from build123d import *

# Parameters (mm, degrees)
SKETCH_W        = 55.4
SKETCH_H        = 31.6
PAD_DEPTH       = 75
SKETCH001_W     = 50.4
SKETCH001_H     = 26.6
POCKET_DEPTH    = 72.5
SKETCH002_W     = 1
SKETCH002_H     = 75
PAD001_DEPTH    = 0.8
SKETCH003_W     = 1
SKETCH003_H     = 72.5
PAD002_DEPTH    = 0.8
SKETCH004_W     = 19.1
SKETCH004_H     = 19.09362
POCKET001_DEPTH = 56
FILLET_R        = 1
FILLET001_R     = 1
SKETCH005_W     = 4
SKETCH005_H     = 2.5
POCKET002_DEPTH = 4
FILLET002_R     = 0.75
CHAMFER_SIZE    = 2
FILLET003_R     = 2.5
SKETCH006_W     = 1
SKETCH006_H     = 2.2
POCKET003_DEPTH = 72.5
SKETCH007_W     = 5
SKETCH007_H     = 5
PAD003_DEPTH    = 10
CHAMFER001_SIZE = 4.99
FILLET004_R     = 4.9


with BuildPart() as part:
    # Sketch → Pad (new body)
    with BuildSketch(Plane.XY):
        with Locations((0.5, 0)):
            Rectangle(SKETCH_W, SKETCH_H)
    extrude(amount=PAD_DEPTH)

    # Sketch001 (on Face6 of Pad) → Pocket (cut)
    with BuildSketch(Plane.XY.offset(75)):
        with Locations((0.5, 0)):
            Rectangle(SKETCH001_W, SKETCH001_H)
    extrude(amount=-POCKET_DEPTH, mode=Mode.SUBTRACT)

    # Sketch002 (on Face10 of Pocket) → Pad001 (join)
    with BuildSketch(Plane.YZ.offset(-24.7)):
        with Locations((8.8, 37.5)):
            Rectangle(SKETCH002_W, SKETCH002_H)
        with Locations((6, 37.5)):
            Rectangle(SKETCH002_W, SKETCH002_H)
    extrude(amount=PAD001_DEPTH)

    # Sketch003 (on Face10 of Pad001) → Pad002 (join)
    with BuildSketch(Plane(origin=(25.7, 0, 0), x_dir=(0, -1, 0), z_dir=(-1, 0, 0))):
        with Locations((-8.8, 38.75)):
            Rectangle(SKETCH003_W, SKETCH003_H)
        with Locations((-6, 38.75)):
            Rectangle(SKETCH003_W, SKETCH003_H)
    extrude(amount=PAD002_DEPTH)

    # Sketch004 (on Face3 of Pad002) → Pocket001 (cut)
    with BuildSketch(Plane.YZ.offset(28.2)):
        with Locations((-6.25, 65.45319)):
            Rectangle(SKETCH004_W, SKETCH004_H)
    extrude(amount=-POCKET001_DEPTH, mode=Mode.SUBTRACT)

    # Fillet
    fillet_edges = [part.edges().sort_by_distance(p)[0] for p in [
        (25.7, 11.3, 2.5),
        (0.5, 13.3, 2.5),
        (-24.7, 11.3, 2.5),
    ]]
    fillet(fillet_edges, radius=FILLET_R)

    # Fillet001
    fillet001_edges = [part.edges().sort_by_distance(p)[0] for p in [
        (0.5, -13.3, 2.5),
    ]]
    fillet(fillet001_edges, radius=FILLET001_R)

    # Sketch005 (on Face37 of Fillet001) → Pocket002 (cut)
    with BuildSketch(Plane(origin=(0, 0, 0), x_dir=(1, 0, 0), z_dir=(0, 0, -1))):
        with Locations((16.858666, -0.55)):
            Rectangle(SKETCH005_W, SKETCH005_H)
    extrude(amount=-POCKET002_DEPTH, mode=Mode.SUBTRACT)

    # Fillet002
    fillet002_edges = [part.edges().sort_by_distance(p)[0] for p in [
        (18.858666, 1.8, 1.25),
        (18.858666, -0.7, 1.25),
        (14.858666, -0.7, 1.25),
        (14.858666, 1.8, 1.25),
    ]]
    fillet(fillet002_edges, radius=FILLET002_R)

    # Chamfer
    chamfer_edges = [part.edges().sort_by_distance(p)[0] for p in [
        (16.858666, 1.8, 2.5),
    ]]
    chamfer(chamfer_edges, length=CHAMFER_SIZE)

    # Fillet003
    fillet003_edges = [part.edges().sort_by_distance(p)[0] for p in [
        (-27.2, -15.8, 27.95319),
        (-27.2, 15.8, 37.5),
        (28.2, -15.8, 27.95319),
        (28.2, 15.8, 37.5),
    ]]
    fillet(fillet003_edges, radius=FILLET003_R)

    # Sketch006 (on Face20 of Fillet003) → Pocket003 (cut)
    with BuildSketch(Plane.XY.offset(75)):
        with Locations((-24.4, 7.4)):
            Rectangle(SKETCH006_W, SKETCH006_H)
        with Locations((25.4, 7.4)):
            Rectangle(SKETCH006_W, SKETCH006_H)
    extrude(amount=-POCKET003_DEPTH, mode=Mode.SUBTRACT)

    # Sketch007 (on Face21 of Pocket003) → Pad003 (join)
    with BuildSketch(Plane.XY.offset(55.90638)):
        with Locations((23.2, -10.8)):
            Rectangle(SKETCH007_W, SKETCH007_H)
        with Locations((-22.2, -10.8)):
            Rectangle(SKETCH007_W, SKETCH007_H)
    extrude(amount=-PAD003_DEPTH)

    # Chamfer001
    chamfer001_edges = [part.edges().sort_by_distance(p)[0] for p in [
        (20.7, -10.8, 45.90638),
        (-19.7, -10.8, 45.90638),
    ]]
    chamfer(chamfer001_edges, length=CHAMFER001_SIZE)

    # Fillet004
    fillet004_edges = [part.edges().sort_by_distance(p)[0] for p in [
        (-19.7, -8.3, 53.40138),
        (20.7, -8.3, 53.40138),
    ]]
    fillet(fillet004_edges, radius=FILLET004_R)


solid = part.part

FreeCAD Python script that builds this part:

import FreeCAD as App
import Part
import Sketcher
Q = App.Units.Quantity


def edges_at(feature, points):
    """Names of the edges that pass closest to the given points."""
    edges = feature.Shape.Edges
    near = lambda p: min(range(len(edges)), key=lambda i: edges[i].distToShape(Part.Vertex(*p))[0])
    return sorted({f"Edge{near(p) + 1}" for p in points})

doc = App.newDocument("Part")
body = doc.addObject("PartDesign::Body", "Body")

# Sketch on XY plane
sketch1 = doc.addObject("Sketcher::SketchObject", "Sketch")
body.addObject(sketch1)
sketch1.AttachmentSupport = (doc.XY_Plane, [""])
sketch1.MapMode = "FlatFace"
sketch1.addGeometry([
    Part.LineSegment(App.Vector(-27, 16, 0), App.Vector(-27, -16, 0)),
    Part.LineSegment(App.Vector(-27, -16, 0), App.Vector(28, -16, 0)),
    Part.LineSegment(App.Vector(28, -16, 0), App.Vector(28, 16, 0)),
    Part.LineSegment(App.Vector(28, 16, 0), App.Vector(-27, 16, 0)),
], False)
sketch1.addConstraint([
    Sketcher.Constraint("Coincident", 0, 2, 1, 1),
    Sketcher.Constraint("Coincident", 1, 2, 2, 1),
    Sketcher.Constraint("Coincident", 2, 2, 3, 1),
    Sketcher.Constraint("Coincident", 3, 2, 0, 1),
    Sketcher.Constraint("Vertical", 0),
    Sketcher.Constraint("Horizontal", 1),
    Sketcher.Constraint("Vertical", 2),
    Sketcher.Constraint("Horizontal", 3),
    Sketcher.Constraint("DistanceX", 1, 1, 1, 2, Q("55.4 mm")),
    Sketcher.Constraint("DistanceY", 0, 2, 0, 1, Q("31.6 mm")),
    Sketcher.Constraint("DistanceX", 0, 2, -1, 1, Q("27.2 mm")),
    Sketcher.Constraint("DistanceY", 0, 2, -1, 1, Q("15.8 mm")),
])
pad1 = doc.addObject("PartDesign::Pad", "Pad")
body.addObject(pad1)
pad1.Profile = sketch1
pad1.Length = 75

# Sketch on XY plane
sketch2 = doc.addObject("Sketcher::SketchObject", "Sketch001")
body.addObject(sketch2)
sketch2.AttachmentSupport = (doc.XY_Plane, [""])
sketch2.MapMode = "FlatFace"
sketch2.AttachmentOffset = App.Placement(App.Vector(0, 0, 75), App.Rotation())
sketch2.addGeometry([
    Part.LineSegment(App.Vector(-25, 13, 0), App.Vector(-25, -13, 0)),
    Part.LineSegment(App.Vector(-25, -13, 0), App.Vector(26, -13, 0)),
    Part.LineSegment(App.Vector(26, -13, 0), App.Vector(26, 13, 0)),
    Part.LineSegment(App.Vector(26, 13, 0), App.Vector(-25, 13, 0)),
], False)
sketch2.addConstraint([
    Sketcher.Constraint("Coincident", 0, 2, 1, 1),
    Sketcher.Constraint("Coincident", 1, 2, 2, 1),
    Sketcher.Constraint("Coincident", 2, 2, 3, 1),
    Sketcher.Constraint("Coincident", 3, 2, 0, 1),
    Sketcher.Constraint("Vertical", 0),
    Sketcher.Constraint("Horizontal", 1),
    Sketcher.Constraint("Vertical", 2),
    Sketcher.Constraint("Horizontal", 3),
    Sketcher.Constraint("DistanceX", 1, 1, 1, 2, Q("50.4 mm")),
    Sketcher.Constraint("DistanceY", 0, 2, 0, 1, Q("26.6 mm")),
    Sketcher.Constraint("DistanceX", 0, 2, -1, 1, Q("24.7 mm")),
    Sketcher.Constraint("DistanceY", 0, 2, -1, 1, Q("13.3 mm")),
])
pocket1 = doc.addObject("PartDesign::Pocket", "Pocket")
body.addObject(pocket1)
pocket1.Profile = sketch2
pocket1.Length = 72.5

# Sketch on YZ plane
sketch3 = doc.addObject("Sketcher::SketchObject", "Sketch002")
body.addObject(sketch3)
sketch3.AttachmentSupport = (doc.YZ_Plane, [""])
sketch3.MapMode = "FlatFace"
sketch3.AttachmentOffset = App.Placement(App.Vector(0, 0, -24.7), App.Rotation())
sketch3.addGeometry([
    Part.LineSegment(App.Vector(8.3, 75, 0), App.Vector(8.3, 0, 0)),  # 0
    Part.LineSegment(App.Vector(8.3, 0, 0), App.Vector(9.3, 0, 0)),  # 1
    Part.LineSegment(App.Vector(9.3, 0, 0), App.Vector(9.3, 75, 0)),  # 2
    Part.LineSegment(App.Vector(9.3, 75, 0), App.Vector(8.3, 75, 0)),  # 3
    Part.LineSegment(App.Vector(5.5, 75, 0), App.Vector(5.5, 0, 0)),  # 4
    Part.LineSegment(App.Vector(5.5, 0, 0), App.Vector(6.5, 0, 0)),  # 5
    Part.LineSegment(App.Vector(6.5, 0, 0), App.Vector(6.5, 75, 0)),  # 6
    Part.LineSegment(App.Vector(6.5, 75, 0), App.Vector(5.5, 75, 0)),  # 7
], False)
sketch3.addConstraint([
    Sketcher.Constraint("Coincident", 0, 2, 1, 1),
    Sketcher.Constraint("Coincident", 1, 2, 2, 1),
    Sketcher.Constraint("Coincident", 2, 2, 3, 1),
    Sketcher.Constraint("Coincident", 3, 2, 0, 1),
    Sketcher.Constraint("Coincident", 4, 2, 5, 1),
    Sketcher.Constraint("Coincident", 5, 2, 6, 1),
    Sketcher.Constraint("Coincident", 6, 2, 7, 1),
    Sketcher.Constraint("Coincident", 7, 2, 4, 1),
    Sketcher.Constraint("Vertical", 0),
    Sketcher.Constraint("Horizontal", 1),
    Sketcher.Constraint("Vertical", 2),
    Sketcher.Constraint("Horizontal", 3),
    Sketcher.Constraint("Vertical", 4),
    Sketcher.Constraint("Horizontal", 5),
    Sketcher.Constraint("Vertical", 6),
    Sketcher.Constraint("Horizontal", 7),
    Sketcher.Constraint("PointOnObject", 0, 2, -1),
    Sketcher.Constraint("PointOnObject", 4, 2, -1),
    Sketcher.Constraint("Horizontal", 3, 2, 6, 2),
    Sketcher.Constraint("Equal", 3, 5),
    Sketcher.Constraint("DistanceX", 1, 1, 1, 2, Q("1 mm")),
    Sketcher.Constraint("DistanceY", 0, 2, 0, 1, Q("75 mm")),
    Sketcher.Constraint("DistanceX", -1, 1, 0, 2, Q("8.3 mm")),
    Sketcher.Constraint("DistanceX", -1, 1, 4, 2, Q("5.5 mm")),
])
pad2 = doc.addObject("PartDesign::Pad", "Pad001")
body.addObject(pad2)
pad2.Profile = sketch3
pad2.Length = 0.8

# Sketch on YZ plane
sketch4 = doc.addObject("Sketcher::SketchObject", "Sketch003")
body.addObject(sketch4)
sketch4.AttachmentSupport = (doc.YZ_Plane, [""])
sketch4.MapMode = "FlatFace"
sketch4.AttachmentOffset = App.Placement(App.Vector(0, 0, 25.7), App.Rotation())
sketch4.addGeometry([
    Part.LineSegment(App.Vector(9.3, 75, 0), App.Vector(9.3, 2.5, 0)),  # 0
    Part.LineSegment(App.Vector(9.3, 2.5, 0), App.Vector(8.3, 2.5, 0)),  # 1
    Part.LineSegment(App.Vector(8.3, 2.5, 0), App.Vector(8.3, 75, 0)),  # 2
    Part.LineSegment(App.Vector(8.3, 75, 0), App.Vector(9.3, 75, 0)),  # 3
    Part.LineSegment(App.Vector(6.5, 75, 0), App.Vector(6.5, 2.5, 0)),  # 4
    Part.LineSegment(App.Vector(6.5, 2.5, 0), App.Vector(5.5, 2.5, 0)),  # 5
    Part.LineSegment(App.Vector(5.5, 2.5, 0), App.Vector(5.5, 75, 0)),  # 6
    Part.LineSegment(App.Vector(5.5, 75, 0), App.Vector(6.5, 75, 0)),  # 7
], False)
sketch4.addConstraint([
    Sketcher.Constraint("Coincident", 0, 2, 1, 1),
    Sketcher.Constraint("Coincident", 1, 2, 2, 1),
    Sketcher.Constraint("Coincident", 2, 2, 3, 1),
    Sketcher.Constraint("Coincident", 3, 2, 0, 1),
    Sketcher.Constraint("Coincident", 4, 2, 5, 1),
    Sketcher.Constraint("Coincident", 5, 2, 6, 1),
    Sketcher.Constraint("Coincident", 6, 2, 7, 1),
    Sketcher.Constraint("Coincident", 7, 2, 4, 1),
    Sketcher.Constraint("Vertical", 0),
    Sketcher.Constraint("Horizontal", 1),
    Sketcher.Constraint("Vertical", 2),
    Sketcher.Constraint("Horizontal", 3),
    Sketcher.Constraint("Vertical", 4),
    Sketcher.Constraint("Horizontal", 5),
    Sketcher.Constraint("Vertical", 6),
    Sketcher.Constraint("Horizontal", 7),
    Sketcher.Constraint("Horizontal", 1, 2, 4, 2),
    Sketcher.Constraint("Horizontal", 3, 2, 6, 2),
    Sketcher.Constraint("Equal", 3, 5),
    Sketcher.Constraint("DistanceX", 1, 2, 1, 1, Q("1 mm")),
    Sketcher.Constraint("DistanceY", 0, 2, 0, 1, Q("72.5 mm")),
    Sketcher.Constraint("DistanceY", -1, 1, 2, 2, Q("75 mm")),
    Sketcher.Constraint("DistanceX", -1, 1, 0, 2, Q("9.3 mm")),
    Sketcher.Constraint("DistanceX", -1, 1, 4, 2, Q("6.5 mm")),
])
pad3 = doc.addObject("PartDesign::Pad", "Pad002")
body.addObject(pad3)
pad3.Profile = sketch4
pad3.Length = 0.8
pad3.Reversed = True

# Sketch on YZ plane
sketch5 = doc.addObject("Sketcher::SketchObject", "Sketch004")
body.addObject(sketch5)
sketch5.AttachmentSupport = (doc.YZ_Plane, [""])
sketch5.MapMode = "FlatFace"
sketch5.AttachmentOffset = App.Placement(App.Vector(0, 0, 28.2), App.Rotation())
sketch5.addGeometry([
    Part.LineSegment(App.Vector(-16, 75, 0), App.Vector(-16, 56, 0)),
    Part.LineSegment(App.Vector(-16, 56, 0), App.Vector(3, 56, 0)),
    Part.LineSegment(App.Vector(3, 56, 0), App.Vector(3, 75, 0)),
    Part.LineSegment(App.Vector(3, 75, 0), App.Vector(-16, 75, 0)),
], False)
sketch5.addConstraint([
    Sketcher.Constraint("Coincident", 0, 2, 1, 1),
    Sketcher.Constraint("Coincident", 1, 2, 2, 1),
    Sketcher.Constraint("Coincident", 2, 2, 3, 1),
    Sketcher.Constraint("Coincident", 3, 2, 0, 1),
    Sketcher.Constraint("Vertical", 0),
    Sketcher.Constraint("Horizontal", 1),
    Sketcher.Constraint("Vertical", 2),
    Sketcher.Constraint("Horizontal", 3),
    Sketcher.Constraint("DistanceX", 1, 1, 1, 2, Q("19.1 mm")),
    Sketcher.Constraint("DistanceY", -1, 1, 2, 2, Q("75 mm")),
    Sketcher.Constraint("DistanceX", 0, 2, -1, 1, Q("15.8 mm")),
    Sketcher.Constraint("DistanceY", 0, 2, 0, 1, Q("19.09362 mm")),
])
pocket2 = doc.addObject("PartDesign::Pocket", "Pocket001")
body.addObject(pocket2)
pocket2.Profile = sketch5
pocket2.Length = 56
doc.recompute()

fillet = doc.addObject("PartDesign::Fillet", "Fillet")
body.addObject(fillet)
fillet.Base = (pocket2, edges_at(pocket2, [(25.7, 11.3, 2.5), (0.5, 13.3, 2.5), (-24.7, 11.3, 2.5)]))
fillet.Radius = 1
doc.recompute()

fillet2 = doc.addObject("PartDesign::Fillet", "Fillet001")
body.addObject(fillet2)
fillet2.Base = (fillet, edges_at(fillet, [(0.5, -13.3, 2.5)]))
fillet2.Radius = 1

# Sketch on XY plane
sketch6 = doc.addObject("Sketcher::SketchObject", "Sketch005")
body.addObject(sketch6)
sketch6.AttachmentSupport = (doc.XY_Plane, [""])
sketch6.MapMode = "FlatFace"
sketch6.addGeometry([
    Part.LineSegment(App.Vector(14.9, -0.7, 0), App.Vector(14.9, 1.8, 0)),
    Part.LineSegment(App.Vector(14.9, 1.8, 0), App.Vector(18.9, 1.8, 0)),
    Part.LineSegment(App.Vector(18.9, 1.8, 0), App.Vector(18.9, -0.7, 0)),
    Part.LineSegment(App.Vector(18.9, -0.7, 0), App.Vector(14.9, -0.7, 0)),
], False)
sketch6.addConstraint([
    Sketcher.Constraint("Coincident", 0, 2, 1, 1),
    Sketcher.Constraint("Coincident", 1, 2, 2, 1),
    Sketcher.Constraint("Coincident", 2, 2, 3, 1),
    Sketcher.Constraint("Coincident", 3, 2, 0, 1),
    Sketcher.Constraint("Vertical", 0),
    Sketcher.Constraint("Horizontal", 1),
    Sketcher.Constraint("Vertical", 2),
    Sketcher.Constraint("Horizontal", 3),
    Sketcher.Constraint("DistanceX", 1, 1, 1, 2, Q("4 mm")),
    Sketcher.Constraint("DistanceY", 0, 1, 0, 2, Q("2.5 mm")),
    Sketcher.Constraint("DistanceY", -1, 1, 0, 2, Q("1.8 mm")),
    Sketcher.Constraint("DistanceX", -1, 1, 0, 2, Q("14.858666 mm")),
])
pocket3 = doc.addObject("PartDesign::Pocket", "Pocket002")
body.addObject(pocket3)
pocket3.Profile = sketch6
pocket3.Length = 4
pocket3.Reversed = True
doc.recompute()

fillet3 = doc.addObject("PartDesign::Fillet", "Fillet002")
body.addObject(fillet3)
fillet3.Base = (pocket3, edges_at(pocket3, [
    (18.859, 1.8, 1.25),
    (18.859, -0.7, 1.25),
    (14.859, -0.7, 1.25),
    (14.859, 1.8, 1.25),
]))
fillet3.Radius = 0.75
doc.recompute()

chamfer = doc.addObject("PartDesign::Chamfer", "Chamfer")
body.addObject(chamfer)
chamfer.Base = (fillet3, edges_at(fillet3, [(16.859, 1.8, 2.5)]))
chamfer.Size = 2
doc.recompute()

fillet4 = doc.addObject("PartDesign::Fillet", "Fillet003")
body.addObject(fillet4)
fillet4.Base = (chamfer, edges_at(chamfer, [
    (-27.2, -15.8, 27.953),
    (-27.2, 15.8, 37.5),
    (28.2, -15.8, 27.953),
    (28.2, 15.8, 37.5),
]))
fillet4.Radius = 2.5

# Sketch on XY plane
sketch7 = doc.addObject("Sketcher::SketchObject", "Sketch006")
body.addObject(sketch7)
sketch7.AttachmentSupport = (doc.XY_Plane, [""])
sketch7.MapMode = "FlatFace"
sketch7.AttachmentOffset = App.Placement(App.Vector(0, 0, 75), App.Rotation())
sketch7.addGeometry([
    Part.LineSegment(App.Vector(-24.9, 8.5, 0), App.Vector(-24.9, 6.3, 0)),  # 0
    Part.LineSegment(App.Vector(-24.9, 6.3, 0), App.Vector(-23.9, 6.3, 0)),  # 1
    Part.LineSegment(App.Vector(-23.9, 6.3, 0), App.Vector(-23.9, 8.5, 0)),  # 2
    Part.LineSegment(App.Vector(-23.9, 8.5, 0), App.Vector(-24.9, 8.5, 0)),  # 3
    Part.LineSegment(App.Vector(24.9, 8.5, 0), App.Vector(24.9, 6.3, 0)),  # 4
    Part.LineSegment(App.Vector(24.9, 6.3, 0), App.Vector(25.9, 6.3, 0)),  # 5
    Part.LineSegment(App.Vector(25.9, 6.3, 0), App.Vector(25.9, 8.5, 0)),  # 6
    Part.LineSegment(App.Vector(25.9, 8.5, 0), App.Vector(24.9, 8.5, 0)),  # 7
], False)
sketch7.addConstraint([
    Sketcher.Constraint("Coincident", 0, 2, 1, 1),
    Sketcher.Constraint("Coincident", 1, 2, 2, 1),
    Sketcher.Constraint("Coincident", 2, 2, 3, 1),
    Sketcher.Constraint("Coincident", 3, 2, 0, 1),
    Sketcher.Constraint("Coincident", 4, 2, 5, 1),
    Sketcher.Constraint("Coincident", 5, 2, 6, 1),
    Sketcher.Constraint("Coincident", 6, 2, 7, 1),
    Sketcher.Constraint("Coincident", 7, 2, 4, 1),
    Sketcher.Constraint("Vertical", 0),
    Sketcher.Constraint("Horizontal", 1),
    Sketcher.Constraint("Vertical", 2),
    Sketcher.Constraint("Horizontal", 3),
    Sketcher.Constraint("Vertical", 4),
    Sketcher.Constraint("Horizontal", 5),
    Sketcher.Constraint("Vertical", 6),
    Sketcher.Constraint("Horizontal", 7),
    Sketcher.Constraint("Symmetric", 0, 2, 4, 2, -2),
    Sketcher.Constraint("Horizontal", 3, 2, 6, 2),
    Sketcher.Constraint("Equal", 3, 5),
    Sketcher.Constraint("DistanceX", 1, 1, 1, 2, Q("1 mm")),
    Sketcher.Constraint("DistanceY", 0, 2, 0, 1, Q("2.2 mm")),
    Sketcher.Constraint("DistanceX", 0, 2, -1, 1, Q("24.9 mm")),
    Sketcher.Constraint("DistanceY", -1, 1, 0, 2, Q("6.3 mm")),
])
pocket4 = doc.addObject("PartDesign::Pocket", "Pocket003")
body.addObject(pocket4)
pocket4.Profile = sketch7
pocket4.Length = 72.5

# Sketch on XY plane
sketch8 = doc.addObject("Sketcher::SketchObject", "Sketch007")
body.addObject(sketch8)
sketch8.AttachmentSupport = (doc.XY_Plane, [""])
sketch8.MapMode = "FlatFace"
sketch8.AttachmentOffset = App.Placement(App.Vector(0, 0, 55.90638), App.Rotation())
sketch8.addGeometry([
    Part.LineSegment(App.Vector(21, -8, 0), App.Vector(21, -13, 0)),  # 0
    Part.LineSegment(App.Vector(21, -13, 0), App.Vector(26, -13, 0)),  # 1
    Part.LineSegment(App.Vector(26, -13, 0), App.Vector(26, -8, 0)),  # 2
    Part.LineSegment(App.Vector(26, -8, 0), App.Vector(21, -8, 0)),  # 3
    Part.LineSegment(App.Vector(-25, -8, 0), App.Vector(-25, -13, 0)),  # 4
    Part.LineSegment(App.Vector(-25, -13, 0), App.Vector(-20, -13, 0)),  # 5
    Part.LineSegment(App.Vector(-20, -13, 0), App.Vector(-20, -8, 0)),  # 6
    Part.LineSegment(App.Vector(-20, -8, 0), App.Vector(-25, -8, 0)),  # 7
], False)
sketch8.addConstraint([
    Sketcher.Constraint("Coincident", 0, 2, 1, 1),
    Sketcher.Constraint("Coincident", 1, 2, 2, 1),
    Sketcher.Constraint("Coincident", 2, 2, 3, 1),
    Sketcher.Constraint("Coincident", 3, 2, 0, 1),
    Sketcher.Constraint("Coincident", 4, 2, 5, 1),
    Sketcher.Constraint("Coincident", 5, 2, 6, 1),
    Sketcher.Constraint("Coincident", 6, 2, 7, 1),
    Sketcher.Constraint("Coincident", 7, 2, 4, 1),
    Sketcher.Constraint("Vertical", 0),
    Sketcher.Constraint("Horizontal", 1),
    Sketcher.Constraint("Vertical", 2),
    Sketcher.Constraint("Horizontal", 3),
    Sketcher.Constraint("Vertical", 4),
    Sketcher.Constraint("Horizontal", 5),
    Sketcher.Constraint("Vertical", 6),
    Sketcher.Constraint("Horizontal", 7),
    Sketcher.Constraint("Horizontal", 1, 2, 4, 2),
    Sketcher.Constraint("Horizontal", 3, 2, 6, 2),
    Sketcher.Constraint("Equal", 3, 5),
    Sketcher.Constraint("Equal", 7, 0),
    Sketcher.Constraint("DistanceX", 1, 1, 1, 2, Q("5 mm")),
    Sketcher.Constraint("DistanceX", -1, 1, 0, 2, Q("20.7 mm")),
    Sketcher.Constraint("DistanceY", 0, 2, -1, 1, Q("13.3 mm")),
    Sketcher.Constraint("DistanceX", 4, 2, -1, 1, Q("24.7 mm")),
])
pad4 = doc.addObject("PartDesign::Pad", "Pad003")
body.addObject(pad4)
pad4.Profile = sketch8
pad4.Length = 10
pad4.Reversed = True
doc.recompute()

chamfer2 = doc.addObject("PartDesign::Chamfer", "Chamfer001")
body.addObject(chamfer2)
chamfer2.Base = (pad4, edges_at(pad4, [(20.7, -10.8, 45.906), (-19.7, -10.8, 45.906)]))
chamfer2.Size = 4.99
doc.recompute()

fillet5 = doc.addObject("PartDesign::Fillet", "Fillet004")
body.addObject(fillet5)
fillet5.Base = (chamfer2, edges_at(chamfer2, [(-19.7, -8.3, 53.401), (20.7, -8.3, 53.401)]))
fillet5.Radius = 4.9

doc.recompute()
